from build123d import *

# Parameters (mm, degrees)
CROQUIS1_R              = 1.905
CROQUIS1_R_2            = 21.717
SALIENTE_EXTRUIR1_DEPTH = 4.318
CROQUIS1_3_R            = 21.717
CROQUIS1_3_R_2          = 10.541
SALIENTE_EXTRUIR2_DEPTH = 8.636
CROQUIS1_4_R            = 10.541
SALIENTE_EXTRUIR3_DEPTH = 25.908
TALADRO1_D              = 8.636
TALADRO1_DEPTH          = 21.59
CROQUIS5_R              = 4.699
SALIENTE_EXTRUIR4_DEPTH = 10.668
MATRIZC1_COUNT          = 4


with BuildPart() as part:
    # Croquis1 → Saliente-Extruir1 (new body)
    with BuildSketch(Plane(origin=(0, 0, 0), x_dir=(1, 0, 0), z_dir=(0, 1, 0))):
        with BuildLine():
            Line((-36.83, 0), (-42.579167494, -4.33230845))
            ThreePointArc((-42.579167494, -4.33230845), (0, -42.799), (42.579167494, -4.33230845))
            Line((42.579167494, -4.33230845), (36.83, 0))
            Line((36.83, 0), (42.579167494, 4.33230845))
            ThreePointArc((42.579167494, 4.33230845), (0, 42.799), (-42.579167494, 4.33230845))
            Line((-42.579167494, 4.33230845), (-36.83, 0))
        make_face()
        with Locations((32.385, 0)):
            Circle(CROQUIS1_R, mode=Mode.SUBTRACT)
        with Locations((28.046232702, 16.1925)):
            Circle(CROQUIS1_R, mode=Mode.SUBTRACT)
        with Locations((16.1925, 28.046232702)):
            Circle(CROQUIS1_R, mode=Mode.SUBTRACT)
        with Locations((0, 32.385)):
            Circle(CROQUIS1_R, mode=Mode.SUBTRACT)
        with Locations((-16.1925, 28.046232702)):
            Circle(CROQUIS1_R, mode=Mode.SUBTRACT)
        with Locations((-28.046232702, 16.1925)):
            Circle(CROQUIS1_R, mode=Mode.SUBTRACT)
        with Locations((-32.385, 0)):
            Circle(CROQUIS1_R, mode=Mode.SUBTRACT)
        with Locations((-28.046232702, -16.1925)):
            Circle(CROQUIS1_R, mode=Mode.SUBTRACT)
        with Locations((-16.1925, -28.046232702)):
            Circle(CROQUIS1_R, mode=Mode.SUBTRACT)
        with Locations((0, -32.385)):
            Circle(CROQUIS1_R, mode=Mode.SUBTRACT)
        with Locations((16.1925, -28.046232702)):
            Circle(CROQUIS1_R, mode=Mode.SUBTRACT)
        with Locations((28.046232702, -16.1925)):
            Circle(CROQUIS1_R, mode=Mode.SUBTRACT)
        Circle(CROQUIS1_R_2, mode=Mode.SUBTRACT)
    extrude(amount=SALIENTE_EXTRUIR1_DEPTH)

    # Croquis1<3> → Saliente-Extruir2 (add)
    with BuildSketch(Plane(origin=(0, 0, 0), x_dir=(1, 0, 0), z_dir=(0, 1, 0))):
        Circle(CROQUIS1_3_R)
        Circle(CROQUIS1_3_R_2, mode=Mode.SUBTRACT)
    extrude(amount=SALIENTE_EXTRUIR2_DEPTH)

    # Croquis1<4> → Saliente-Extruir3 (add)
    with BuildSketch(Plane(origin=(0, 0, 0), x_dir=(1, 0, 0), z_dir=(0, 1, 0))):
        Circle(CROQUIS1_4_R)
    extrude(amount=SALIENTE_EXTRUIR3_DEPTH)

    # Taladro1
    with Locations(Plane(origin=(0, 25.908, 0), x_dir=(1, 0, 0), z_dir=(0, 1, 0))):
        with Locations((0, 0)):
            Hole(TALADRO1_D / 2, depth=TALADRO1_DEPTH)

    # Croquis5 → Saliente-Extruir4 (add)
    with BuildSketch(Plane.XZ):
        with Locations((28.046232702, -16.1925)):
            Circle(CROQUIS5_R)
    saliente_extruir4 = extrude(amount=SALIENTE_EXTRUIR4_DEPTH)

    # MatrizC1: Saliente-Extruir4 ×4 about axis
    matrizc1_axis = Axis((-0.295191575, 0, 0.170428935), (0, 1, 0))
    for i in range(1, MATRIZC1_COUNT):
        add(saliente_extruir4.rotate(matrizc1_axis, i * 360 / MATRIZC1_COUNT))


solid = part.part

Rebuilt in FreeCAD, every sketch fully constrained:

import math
import FreeCAD as App
import Part
import Sketcher
from FreeCAD import Vector
Q = App.Units.Quantity

doc = App.newDocument("Part")
body = doc.addObject("PartDesign::Body", "Body")

sketch1 = body.newObject("Sketcher::SketchObject", "Sketch")
sketch1.AttachmentSupport = (doc.getObject("XZ_Plane"), [""])
sketch1.MapMode = "FlatFace"
sketch1.addGeometry([
    Part.LineSegment(Vector(-36.8, 0, 0), Vector(-42.6, 4.3, 0)),
    Part.ArcOfCircle(Part.Circle(Vector(0, 0, 0), Vector(0, 0, 1), 42.8), math.radians(6), math.radians(174)),
    Part.LineSegment(Vector(42.6, 4.3, 0), Vector(36.8, 0, 0)),
    Part.LineSegment(Vector(36.8, 0, 0), Vector(42.6, -4.3, 0)),
    Part.ArcOfCircle(Part.Circle(Vector(0, 0, 0), Vector(0, 0, 1), 42.8), math.radians(-174), math.radians(-6)),
    Part.LineSegment(Vector(-42.6, -4.3, 0), Vector(-36.8, 0, 0)),
    Part.Circle(Vector(-16.2, 28, 0), Vector(0, 0, 1), 1.9),
    Part.Circle(Vector(-28, 16.2, 0), Vector(0, 0, 1), 1.9),
    Part.Circle(Vector(0, 32.4, 0), Vector(0, 0, 1), 1.9),
    Part.Circle(Vector(16.2, 28, 0), Vector(0, 0, 1), 1.9),
    Part.Circle(Vector(28, 16.2, 0), Vector(0, 0, 1), 1.9),
    Part.Circle(Vector(-32.4, 0, 0), Vector(0, 0, 1), 1.9),
    Part.Circle(Vector(-28, -16.2, 0), Vector(0, 0, 1), 1.9),
    Part.Circle(Vector(-16.2, -28, 0), Vector(0, 0, 1), 1.9),
    Part.Circle(Vector(0, 0, 0), Vector(0, 0, 1), 21.7),
    Part.Circle(Vector(32.4, 0, 0), Vector(0, 0, 1), 1.9),
    Part.Circle(Vector(28, -16.2, 0), Vector(0, 0, 1), 1.9),
    Part.Circle(Vector(0, -32.4, 0), Vector(0, 0, 1), 1.9),
    Part.Circle(Vector(16.2, -28, 0), Vector(0, 0, 1), 1.9),
], False)
sketch1.addConstraint([
    Sketcher.Constraint("Coincident", 0, 2, 1, 2),
    Sketcher.Constraint("Coincident", 1, 1, 2, 1),
    Sketcher.Constraint("Coincident", 2, 2, 3, 1),
    Sketcher.Constraint("Coincident", 3, 2, 4, 2),
    Sketcher.Constraint("Coincident", 4, 1, 5, 1),
    Sketcher.Constraint("Coincident", 5, 2, 0, 1),
    Sketcher.Constraint("Coincident", 1, 3, -1, 1),
    Sketcher.Constraint("Coincident", 4, 3, -1, 1),
    Sketcher.Constraint("Coincident", 14, 3, -1, 1),
    Sketcher.Constraint("Equal", 1, 4),
    Sketcher.Constraint("Equal", 6, 7),
    Sketcher.Constraint("Equal", 7, 8),
    Sketcher.Constraint("Equal", 8, 9),
    Sketcher.Constraint("Equal", 9, 10),
    Sketcher.Constraint("Equal", 10, 11),
    Sketcher.Constraint("Equal", 11, 12),
    Sketcher.Constraint("Equal", 12, 13),
    Sketcher.Constraint("Equal", 13, 15),
    Sketcher.Constraint("Equal", 15, 16),
    Sketcher.Constraint("Equal", 16, 17),
    Sketcher.Constraint("Equal", 17, 18),
    Sketcher.Constraint("Symmetric", 10, 3, 12, 3, -1, 1),
    Sketcher.Constraint("Symmetric", 9, 3, 13, 3, -1, 1),
    Sketcher.Constraint("Symmetric", 11, 3, 15, 3, -1, 1),
    Sketcher.Constraint("Symmetric", 7, 3, 16, 3, -1, 1),
    Sketcher.Constraint("Symmetric", 8, 3, 17, 3, -1, 1),
    Sketcher.Constraint("Symmetric", 6, 3, 18, 3, -1, 1),
    Sketcher.Constraint("Symmetric", 2, 2, 5, 2, -1, 1),
    Sketcher.Constraint("Symmetric", 6, 3, 9, 3, -2),
    Sketcher.Constraint("Symmetric", 7, 3, 10, 3, -2),
    Sketcher.Constraint("PointOnObject", 8, 3, -2),
    Sketcher.Constraint("PointOnObject", 11, 3, -1),
    Sketcher.Constraint("PointOnObject", 2, 2, -1),
    Sketcher.Constraint("Parallel", 0, 3),
    Sketcher.Constraint("Parallel", 2, 5),
    Sketcher.Constraint("Horizontal", 0, 2, 1, 1),
    Sketcher.Constraint("Diameter", 6, Q("0.15 in")),
    Sketcher.Constraint("Diameter", 14, Q("1.71 in")),
    Sketcher.Constraint("Angle", 0, Q("143 deg")),
    Sketcher.Constraint("Radius", 1, Q("1.685 in")),
    Sketcher.Constraint("DistanceX", -1, 1, 2, 2, Q("1.45 in")),
    Sketcher.Constraint("DistanceY", -1, 1, 8, 3, Q("1.275 in")),
    Sketcher.Constraint("DistanceX", 11, 3, -1, 1, Q("1.275 in")),
    Sketcher.Constraint("DistanceX", 6, 3, 9, 3, Q("1.275 in")),
    Sketcher.Constraint("DistanceY", 12, 3, 7, 3, Q("1.275 in")),
    Sketcher.Constraint("DistanceY", 13, 3, 0, 2, 32.378541),
    Sketcher.Constraint("DistanceX", 7, 3, -1, 1, 28.046233),
])
pad1 = body.newObject("PartDesign::Pad", "Pad")
pad1.Profile = sketch1
pad1.Length = Q("0.17 in")
pad1.Reversed = True

sketch2 = body.newObject("Sketcher::SketchObject", "Sketch001")
sketch2.AttachmentSupport = (doc.getObject("XZ_Plane"), [""])
sketch2.MapMode = "FlatFace"
sketch2.addGeometry([
    Part.Circle(Vector(0, 0, 0), Vector(0, 0, 1), 22),
    Part.Circle(Vector(0, 0, 0), Vector(0, 0, 1), 11),
], False)
sketch2.addConstraint([
    Sketcher.Constraint("Coincident", 0, 3, -1, 1),
    Sketcher.Constraint("Coincident", 1, 3, -1, 1),
    Sketcher.Constraint("Diameter", 0, Q("1.71 in")),
    Sketcher.Constraint("Diameter", 1, Q("0.83 in")),
])
pad2 = body.newObject("PartDesign::Pad", "Pad001")
pad2.Profile = sketch2
pad2.Length = Q("0.34 in")
pad2.Reversed = True

sketch3 = body.newObject("Sketcher::SketchObject", "Sketch002")
sketch3.AttachmentSupport = (doc.getObject("XZ_Plane"), [""])
sketch3.MapMode = "FlatFace"
sketch3.addGeometry(Part.Circle(Vector(0, 0, 0), Vector(0, 0, 1), 11), False)
sketch3.addConstraint([
    Sketcher.Constraint("Coincident", 0, 3, -1, 1),
    Sketcher.Constraint("Diameter", 0, Q("0.83 in")),
])
pad3 = body.newObject("PartDesign::Pad", "Pad002")
pad3.Profile = sketch3
pad3.Length = Q("1.02 in")
pad3.Reversed = True

sketch4 = body.newObject("Sketcher::SketchObject", "Sketch003")
sketch4.AttachmentSupport = (doc.getObject("XZ_Plane"), [""])
sketch4.MapMode = "FlatFace"
sketch4.AttachmentOffset = App.Placement(Vector(0, 0, -1.02 * 25.4), App.Rotation())
sketch4.addGeometry(Part.Circle(Vector(0, 0, 0), Vector(0, 0, 1), 4.3), False)
sketch4.addConstraint([
    Sketcher.Constraint("Coincident", 0, 3, -1, 1),
    Sketcher.Constraint("Diameter", 0, Q("0.34 in")),
])
doc.recompute()
hole = body.newObject("PartDesign::Hole", "Hole")
hole.Profile = sketch4
hole.ThreadType = "None"
hole.Diameter = Q("0.34 in")
hole.DepthType = "Dimension"
hole.Depth = Q("0.85 in")
hole.DrillPoint = "Flat"
hole.Reversed = True

sketch5 = body.newObject("Sketcher::SketchObject", "Sketch004")
sketch5.AttachmentSupport = (doc.getObject("XZ_Plane"), [""])
sketch5.MapMode = "FlatFace"
sketch5.addGeometry(Part.Circle(Vector(28, -16.2, 0), Vector(0, 0, 1), 4.7), False)
sketch5.addConstraint([
    Sketcher.Constraint("Diameter", 0, Q("0.37 in")),
    Sketcher.Constraint("DistanceY", 0, 3, -1, 1, Q("0.6375 in")),
    Sketcher.Constraint("DistanceX", -1, 1, 0, 3, 28.046233),
])
pad4 = body.newObject("PartDesign::Pad", "Pad003")
pad4.Profile = sketch5
pad4.Length = Q("0.42 in")
doc.recompute()

datumline = body.newObject("PartDesign::Line", "DatumLine")
datumline.Placement = App.Placement(Vector(-0.295192, 0, 0.170429), App.Rotation(Vector(0, 0, 1), Vector(0, 1, 0)))
polarpattern = body.newObject("PartDesign::PolarPattern", "PolarPattern")
polarpattern.Originals = [pad4]
polarpattern.Axis = (datumline, [""])
polarpattern.Angle = 360
polarpattern.Occurrences = 4
body.Tip = polarpattern

doc.recompute()
